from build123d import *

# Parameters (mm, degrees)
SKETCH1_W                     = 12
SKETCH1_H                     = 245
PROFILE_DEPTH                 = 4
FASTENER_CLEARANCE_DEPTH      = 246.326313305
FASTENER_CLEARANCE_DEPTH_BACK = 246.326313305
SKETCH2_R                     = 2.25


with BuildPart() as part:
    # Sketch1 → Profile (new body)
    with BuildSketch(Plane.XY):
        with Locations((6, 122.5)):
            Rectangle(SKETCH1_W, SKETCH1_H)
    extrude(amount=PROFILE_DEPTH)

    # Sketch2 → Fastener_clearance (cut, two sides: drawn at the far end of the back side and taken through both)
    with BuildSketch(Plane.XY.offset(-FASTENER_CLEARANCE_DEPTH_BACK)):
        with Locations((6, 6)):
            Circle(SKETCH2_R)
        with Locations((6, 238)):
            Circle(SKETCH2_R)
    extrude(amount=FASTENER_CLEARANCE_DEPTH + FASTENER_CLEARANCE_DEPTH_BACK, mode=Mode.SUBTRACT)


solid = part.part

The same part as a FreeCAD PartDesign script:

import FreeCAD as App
import Part
import Sketcher

V = App.Vector

doc = App.newDocument("Part")
params = doc.addObject("Spreadsheet::Sheet", "Params")
for row, (alias, value) in enumerate([
    ("sketch1_width", "12 mm"),
    ("sketch1_height", "245 mm"),
    ("pad1_length", "4 mm"),
    ("sketch2_diameter", "4.5 mm"),
], start=1):
    params.set(f"A{row}", alias)
    params.set(f"B{row}", "=" + value)
    params.setAlias(f"B{row}", alias)

body = doc.addObject("PartDesign::Body", "Body")

sketch1 = body.newObject("Sketcher::SketchObject", "Sketch")
sketch1.AttachmentSupport = (doc.getObject("XY_Plane"), [""])
sketch1.MapMode = "FlatFace"
sketch1.addGeometry(Part.LineSegment(V(0, 245, 0), V(0, 0, 0)), False)
sketch1.addGeometry(Part.LineSegment(V(0, 0, 0), V(12, 0, 0)), False)
sketch1.addGeometry(Part.LineSegment(V(12, 0, 0), V(12, 245, 0)), False)
sketch1.addGeometry(Part.LineSegment(V(12, 245, 0), V(0, 245, 0)), False)
sketch1.addConstraint(Sketcher.Constraint("Coincident", 0, 2, 1, 1))
sketch1.addConstraint(Sketcher.Constraint("Coincident", 1, 2, 2, 1))
sketch1.addConstraint(Sketcher.Constraint("Coincident", 2, 2, 3, 1))
sketch1.addConstraint(Sketcher.Constraint("Coincident", 3, 2, 0, 1))
sketch1.addConstraint(Sketcher.Constraint("Vertical", 0))
sketch1.addConstraint(Sketcher.Constraint("Horizontal", 1))
sketch1.addConstraint(Sketcher.Constraint("Vertical", 2))
sketch1.addConstraint(Sketcher.Constraint("Horizontal", 3))
sketch1.addConstraint(Sketcher.Constraint("Coincident", 0, 2, -1, 1))
sketch1.addConstraint(Sketcher.Constraint("DistanceX", 1, 1, 1, 2, 12.0))
sketch1.addConstraint(Sketcher.Constraint("DistanceY", 0, 2, 0, 1, 245.0))
sketch1.setExpression("Constraints[9]", "Params.sketch1_width")
sketch1.setExpression("Constraints[10]", "Params.sketch1_height")
pad1 = body.newObject("PartDesign::Pad", "Pad")
pad1.Profile = sketch1
pad1.setExpression("Length", "Params.pad1_length")

sketch2 = body.newObject("Sketcher::SketchObject", "Sketch001")
sketch2.AttachmentSupport = (doc.getObject("XY_Plane"), [""])
sketch2.MapMode = "FlatFace"
sketch2.addGeometry(Part.Circle(V(6, 6, 0), V(0, 0, 1), 2.2), False)
sketch2.addGeometry(Part.Circle(V(6, 238, 0), V(0, 0, 1), 2.2), False)
sketch2.addConstraint(Sketcher.Constraint("Equal", 0, 1))
sketch2.addConstraint(Sketcher.Constraint("Vertical", 0, 3, 1, 3))
sketch2.addConstraint(Sketcher.Constraint("Diameter", 0, 4.5))
sketch2.addConstraint(Sketcher.Constraint("DistanceX", -1, 1, 0, 3, 6.0))
sketch2.addConstraint(Sketcher.Constraint("DistanceY", -1, 1, 0, 3, 6.0))
sketch2.addConstraint(Sketcher.Constraint("DistanceY", -1, 1, 1, 3, 238.0))
sketch2.setExpression("Constraints[2]", "Params.sketch2_diameter")
pocket1 = body.newObject("PartDesign::Pocket", "Pocket")
pocket1.Profile = sketch2
pocket1.Type = "ThroughAll"
pocket1.Midplane = True

doc.recompute()
